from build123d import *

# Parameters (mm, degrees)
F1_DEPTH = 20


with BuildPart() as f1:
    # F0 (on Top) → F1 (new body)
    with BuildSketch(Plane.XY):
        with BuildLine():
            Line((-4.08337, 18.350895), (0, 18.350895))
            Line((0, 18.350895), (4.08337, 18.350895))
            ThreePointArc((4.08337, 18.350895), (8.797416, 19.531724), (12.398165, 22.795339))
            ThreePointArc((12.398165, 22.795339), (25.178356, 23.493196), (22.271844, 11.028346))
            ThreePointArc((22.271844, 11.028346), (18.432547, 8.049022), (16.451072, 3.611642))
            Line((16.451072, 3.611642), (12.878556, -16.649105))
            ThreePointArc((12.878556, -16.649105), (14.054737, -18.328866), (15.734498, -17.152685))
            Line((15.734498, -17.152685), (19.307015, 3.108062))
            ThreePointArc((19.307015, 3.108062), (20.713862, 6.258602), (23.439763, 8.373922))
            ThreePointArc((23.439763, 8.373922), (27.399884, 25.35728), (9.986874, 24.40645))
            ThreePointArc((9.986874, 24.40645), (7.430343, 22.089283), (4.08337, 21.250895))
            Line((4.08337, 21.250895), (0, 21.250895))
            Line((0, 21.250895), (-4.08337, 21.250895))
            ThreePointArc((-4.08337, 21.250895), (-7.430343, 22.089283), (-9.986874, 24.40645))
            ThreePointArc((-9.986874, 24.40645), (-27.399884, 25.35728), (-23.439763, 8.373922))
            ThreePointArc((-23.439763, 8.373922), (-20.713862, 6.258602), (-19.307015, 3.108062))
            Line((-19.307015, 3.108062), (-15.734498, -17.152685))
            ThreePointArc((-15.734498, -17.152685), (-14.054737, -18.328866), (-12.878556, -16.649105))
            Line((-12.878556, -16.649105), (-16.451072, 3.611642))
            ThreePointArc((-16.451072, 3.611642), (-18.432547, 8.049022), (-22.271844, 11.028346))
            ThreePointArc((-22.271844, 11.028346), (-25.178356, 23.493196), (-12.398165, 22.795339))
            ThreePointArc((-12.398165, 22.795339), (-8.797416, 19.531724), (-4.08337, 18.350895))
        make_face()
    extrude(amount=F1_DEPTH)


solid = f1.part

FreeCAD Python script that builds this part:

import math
import FreeCAD as App
import Part
import Sketcher
Q = App.Units.Quantity

doc = App.newDocument("Part")
body = doc.addObject("PartDesign::Body", "Body")

# Sketch on XY plane
sketch1 = doc.addObject("Sketcher::SketchObject", "Sketch")
body.addObject(sketch1)
sketch1.AttachmentSupport = (doc.XY_Plane, [""])
sketch1.MapMode = "FlatFace"
sketch1.addGeometry([
    Part.LineSegment(App.Vector(-4.1, 18.4, 0), App.Vector(4.1, 18.4, 0)),  # 0
    Part.ArcOfCircle(Part.Circle(App.Vector(4.1, 28.4, 0), App.Vector(0, 0, 1), 10), math.radians(-90), math.radians(-34)),  # 1
    Part.ArcOfCircle(Part.Circle(App.Vector(19.1, 18.4, 0), App.Vector(0, 0, 1), 8), math.radians(-66), math.radians(146)),  # 2
    Part.ArcOfCircle(Part.Circle(App.Vector(26.3, 1.9, 0), App.Vector(0, 0, 1), 10), math.radians(114), math.radians(170)),  # 3
    Part.LineSegment(App.Vector(16.5, 3.6, 0), App.Vector(12.9, -16.6, 0)),  # 4
    Part.ArcOfCircle(Part.Circle(App.Vector(14.3, -16.9, 0), App.Vector(0, 0, 1), 1.4), math.radians(170), math.radians(350)),  # 5
    Part.LineSegment(App.Vector(15.7, -17.2, 0), App.Vector(19.3, 3.1, 0)),  # 6
    Part.ArcOfCircle(Part.Circle(App.Vector(26.3, 1.9, 0), App.Vector(0, 0, 1), 7.1), math.radians(114), math.radians(170)),  # 7
    Part.ArcOfCircle(Part.Circle(App.Vector(19, 18.4, 0), App.Vector(0, 0, 1), 10.9), math.radians(-66), math.radians(146)),  # 8
    Part.ArcOfCircle(Part.Circle(App.Vector(4.1, 28.4, 0), App.Vector(0, 0, 1), 7.1), math.radians(-90), math.radians(-34)),  # 9
    Part.LineSegment(App.Vector(4.1, 21.3, 0), App.Vector(-4.1, 21.3, 0)),  # 10
    Part.ArcOfCircle(Part.Circle(App.Vector(-4.1, 28.4, 0), App.Vector(0, 0, 1), 7.1), math.radians(-146), math.radians(-90)),  # 11
    Part.ArcOfCircle(Part.Circle(App.Vector(-19, 18.4, 0), App.Vector(0, 0, 1), 10.9), math.radians(34), math.radians(246)),  # 12
    Part.ArcOfCircle(Part.Circle(App.Vector(-26.3, 1.9, 0), App.Vector(0, 0, 1), 7.1), math.radians(10), math.radians(66)),  # 13
    Part.LineSegment(App.Vector(-19.3, 3.1, 0), App.Vector(-15.7, -17.2, 0)),  # 14
    Part.ArcOfCircle(Part.Circle(App.Vector(-14.3, -16.9, 0), App.Vector(0, 0, 1), 1.4), math.radians(-170), math.radians(10)),  # 15
    Part.LineSegment(App.Vector(-12.9, -16.6, 0), App.Vector(-16.5, 3.6, 0)),  # 16
    Part.ArcOfCircle(Part.Circle(App.Vector(-26.3, 1.9, 0), App.Vector(0, 0, 1), 10), math.radians(10), math.radians(66)),  # 17
    Part.ArcOfCircle(Part.Circle(App.Vector(-19.1, 18.4, 0), App.Vector(0, 0, 1), 8), math.radians(34), math.radians(246)),  # 18
    Part.ArcOfCircle(Part.Circle(App.Vector(-4.1, 28.4, 0), App.Vector(0, 0, 1), 10), math.radians(-146), math.radians(-90)),  # 19
], False)
sketch1.addConstraint([
    Sketcher.Constraint("Tangent", 0, 2, 1, 1),
    Sketcher.Constraint("Tangent", 1, 2, 2, 2),
    Sketcher.Constraint("Tangent", 2, 1, 3, 1),
    Sketcher.Constraint("Tangent", 3, 2, 4, 1),
    Sketcher.Constraint("Tangent", 4, 2, 5, 1),
    Sketcher.Constraint("Tangent", 5, 2, 6, 1),
    Sketcher.Constraint("Tangent", 6, 2, 7, 2),
    Sketcher.Constraint("Tangent", 7, 1, 8, 1),
    Sketcher.Constraint("Tangent", 8, 2, 9, 2),
    Sketcher.Constraint("Tangent", 9, 1, 10, 1),
    Sketcher.Constraint("Tangent", 10, 2, 11, 2),
    Sketcher.Constraint("Tangent", 11, 1, 12, 1),
    Sketcher.Constraint("Tangent", 12, 2, 13, 2),
    Sketcher.Constraint("Tangent", 13, 1, 14, 1),
    Sketcher.Constraint("Tangent", 14, 2, 15, 1),
    Sketcher.Constraint("Tangent", 15, 2, 16, 1),
    Sketcher.Constraint("Tangent", 16, 2, 17, 1),
    Sketcher.Constraint("Tangent", 17, 2, 18, 2),
    Sketcher.Constraint("Tangent", 18, 1, 19, 1),
    Sketcher.Constraint("Tangent", 19, 2, 0, 1),
    Sketcher.Constraint("Horizontal", 0),
    Sketcher.Constraint("Horizontal", 10),
    Sketcher.Constraint("Coincident", 7, 3, 3, 3),
    Sketcher.Constraint("Coincident", 8, 3, 2, 3),
    Sketcher.Constraint("Coincident", 9, 3, 1, 3),
    Sketcher.Constraint("Coincident", 17, 3, 13, 3),
    Sketcher.Constraint("Coincident", 18, 3, 12, 3),
    Sketcher.Constraint("Coincident", 19, 3, 11, 3),
    Sketcher.Constraint("Equal", 9, 11),
    Sketcher.Constraint("Equal", 8, 12),
    Sketcher.Constraint("Equal", 7, 13),
    Sketcher.Constraint("Equal", 5, 15),
    Sketcher.Constraint("Symmetric", 2, 3, 12, 3, -2),
    Sketcher.Constraint("Symmetric", 5, 3, 15, 3, -2),
    Sketcher.Constraint("Parallel", 4, 6),
    Sketcher.Constraint("Horizontal", 7, 3, 13, 3),
    Sketcher.Constraint("Horizontal", 18, 3, 0, 2),
    Sketcher.Constraint("Radius", 1, 10.000001),
    Sketcher.Constraint("Radius", 2, 8.0),
    Sketcher.Constraint("Radius", 3, 9.999998),
    Sketcher.Constraint("Radius", 8, 10.9),
    Sketcher.Constraint("Angle", 4, Q("-99.999999 deg")),
    Sketcher.Constraint("DistanceX", 12, 3, 8, 3, 38.1),
    Sketcher.Constraint("Distance", 4, 20.573302),
    Sketcher.Constraint("DistanceX", -1, 1, 5, 2, 15.734498),
    Sketcher.Constraint("DistanceY", -1, 1, 3, 3, 1.875161),
])
pad1 = doc.addObject("PartDesign::Pad", "Pad")
body.addObject(pad1)
pad1.Profile = sketch1
pad1.Length = 20

doc.recompute()
